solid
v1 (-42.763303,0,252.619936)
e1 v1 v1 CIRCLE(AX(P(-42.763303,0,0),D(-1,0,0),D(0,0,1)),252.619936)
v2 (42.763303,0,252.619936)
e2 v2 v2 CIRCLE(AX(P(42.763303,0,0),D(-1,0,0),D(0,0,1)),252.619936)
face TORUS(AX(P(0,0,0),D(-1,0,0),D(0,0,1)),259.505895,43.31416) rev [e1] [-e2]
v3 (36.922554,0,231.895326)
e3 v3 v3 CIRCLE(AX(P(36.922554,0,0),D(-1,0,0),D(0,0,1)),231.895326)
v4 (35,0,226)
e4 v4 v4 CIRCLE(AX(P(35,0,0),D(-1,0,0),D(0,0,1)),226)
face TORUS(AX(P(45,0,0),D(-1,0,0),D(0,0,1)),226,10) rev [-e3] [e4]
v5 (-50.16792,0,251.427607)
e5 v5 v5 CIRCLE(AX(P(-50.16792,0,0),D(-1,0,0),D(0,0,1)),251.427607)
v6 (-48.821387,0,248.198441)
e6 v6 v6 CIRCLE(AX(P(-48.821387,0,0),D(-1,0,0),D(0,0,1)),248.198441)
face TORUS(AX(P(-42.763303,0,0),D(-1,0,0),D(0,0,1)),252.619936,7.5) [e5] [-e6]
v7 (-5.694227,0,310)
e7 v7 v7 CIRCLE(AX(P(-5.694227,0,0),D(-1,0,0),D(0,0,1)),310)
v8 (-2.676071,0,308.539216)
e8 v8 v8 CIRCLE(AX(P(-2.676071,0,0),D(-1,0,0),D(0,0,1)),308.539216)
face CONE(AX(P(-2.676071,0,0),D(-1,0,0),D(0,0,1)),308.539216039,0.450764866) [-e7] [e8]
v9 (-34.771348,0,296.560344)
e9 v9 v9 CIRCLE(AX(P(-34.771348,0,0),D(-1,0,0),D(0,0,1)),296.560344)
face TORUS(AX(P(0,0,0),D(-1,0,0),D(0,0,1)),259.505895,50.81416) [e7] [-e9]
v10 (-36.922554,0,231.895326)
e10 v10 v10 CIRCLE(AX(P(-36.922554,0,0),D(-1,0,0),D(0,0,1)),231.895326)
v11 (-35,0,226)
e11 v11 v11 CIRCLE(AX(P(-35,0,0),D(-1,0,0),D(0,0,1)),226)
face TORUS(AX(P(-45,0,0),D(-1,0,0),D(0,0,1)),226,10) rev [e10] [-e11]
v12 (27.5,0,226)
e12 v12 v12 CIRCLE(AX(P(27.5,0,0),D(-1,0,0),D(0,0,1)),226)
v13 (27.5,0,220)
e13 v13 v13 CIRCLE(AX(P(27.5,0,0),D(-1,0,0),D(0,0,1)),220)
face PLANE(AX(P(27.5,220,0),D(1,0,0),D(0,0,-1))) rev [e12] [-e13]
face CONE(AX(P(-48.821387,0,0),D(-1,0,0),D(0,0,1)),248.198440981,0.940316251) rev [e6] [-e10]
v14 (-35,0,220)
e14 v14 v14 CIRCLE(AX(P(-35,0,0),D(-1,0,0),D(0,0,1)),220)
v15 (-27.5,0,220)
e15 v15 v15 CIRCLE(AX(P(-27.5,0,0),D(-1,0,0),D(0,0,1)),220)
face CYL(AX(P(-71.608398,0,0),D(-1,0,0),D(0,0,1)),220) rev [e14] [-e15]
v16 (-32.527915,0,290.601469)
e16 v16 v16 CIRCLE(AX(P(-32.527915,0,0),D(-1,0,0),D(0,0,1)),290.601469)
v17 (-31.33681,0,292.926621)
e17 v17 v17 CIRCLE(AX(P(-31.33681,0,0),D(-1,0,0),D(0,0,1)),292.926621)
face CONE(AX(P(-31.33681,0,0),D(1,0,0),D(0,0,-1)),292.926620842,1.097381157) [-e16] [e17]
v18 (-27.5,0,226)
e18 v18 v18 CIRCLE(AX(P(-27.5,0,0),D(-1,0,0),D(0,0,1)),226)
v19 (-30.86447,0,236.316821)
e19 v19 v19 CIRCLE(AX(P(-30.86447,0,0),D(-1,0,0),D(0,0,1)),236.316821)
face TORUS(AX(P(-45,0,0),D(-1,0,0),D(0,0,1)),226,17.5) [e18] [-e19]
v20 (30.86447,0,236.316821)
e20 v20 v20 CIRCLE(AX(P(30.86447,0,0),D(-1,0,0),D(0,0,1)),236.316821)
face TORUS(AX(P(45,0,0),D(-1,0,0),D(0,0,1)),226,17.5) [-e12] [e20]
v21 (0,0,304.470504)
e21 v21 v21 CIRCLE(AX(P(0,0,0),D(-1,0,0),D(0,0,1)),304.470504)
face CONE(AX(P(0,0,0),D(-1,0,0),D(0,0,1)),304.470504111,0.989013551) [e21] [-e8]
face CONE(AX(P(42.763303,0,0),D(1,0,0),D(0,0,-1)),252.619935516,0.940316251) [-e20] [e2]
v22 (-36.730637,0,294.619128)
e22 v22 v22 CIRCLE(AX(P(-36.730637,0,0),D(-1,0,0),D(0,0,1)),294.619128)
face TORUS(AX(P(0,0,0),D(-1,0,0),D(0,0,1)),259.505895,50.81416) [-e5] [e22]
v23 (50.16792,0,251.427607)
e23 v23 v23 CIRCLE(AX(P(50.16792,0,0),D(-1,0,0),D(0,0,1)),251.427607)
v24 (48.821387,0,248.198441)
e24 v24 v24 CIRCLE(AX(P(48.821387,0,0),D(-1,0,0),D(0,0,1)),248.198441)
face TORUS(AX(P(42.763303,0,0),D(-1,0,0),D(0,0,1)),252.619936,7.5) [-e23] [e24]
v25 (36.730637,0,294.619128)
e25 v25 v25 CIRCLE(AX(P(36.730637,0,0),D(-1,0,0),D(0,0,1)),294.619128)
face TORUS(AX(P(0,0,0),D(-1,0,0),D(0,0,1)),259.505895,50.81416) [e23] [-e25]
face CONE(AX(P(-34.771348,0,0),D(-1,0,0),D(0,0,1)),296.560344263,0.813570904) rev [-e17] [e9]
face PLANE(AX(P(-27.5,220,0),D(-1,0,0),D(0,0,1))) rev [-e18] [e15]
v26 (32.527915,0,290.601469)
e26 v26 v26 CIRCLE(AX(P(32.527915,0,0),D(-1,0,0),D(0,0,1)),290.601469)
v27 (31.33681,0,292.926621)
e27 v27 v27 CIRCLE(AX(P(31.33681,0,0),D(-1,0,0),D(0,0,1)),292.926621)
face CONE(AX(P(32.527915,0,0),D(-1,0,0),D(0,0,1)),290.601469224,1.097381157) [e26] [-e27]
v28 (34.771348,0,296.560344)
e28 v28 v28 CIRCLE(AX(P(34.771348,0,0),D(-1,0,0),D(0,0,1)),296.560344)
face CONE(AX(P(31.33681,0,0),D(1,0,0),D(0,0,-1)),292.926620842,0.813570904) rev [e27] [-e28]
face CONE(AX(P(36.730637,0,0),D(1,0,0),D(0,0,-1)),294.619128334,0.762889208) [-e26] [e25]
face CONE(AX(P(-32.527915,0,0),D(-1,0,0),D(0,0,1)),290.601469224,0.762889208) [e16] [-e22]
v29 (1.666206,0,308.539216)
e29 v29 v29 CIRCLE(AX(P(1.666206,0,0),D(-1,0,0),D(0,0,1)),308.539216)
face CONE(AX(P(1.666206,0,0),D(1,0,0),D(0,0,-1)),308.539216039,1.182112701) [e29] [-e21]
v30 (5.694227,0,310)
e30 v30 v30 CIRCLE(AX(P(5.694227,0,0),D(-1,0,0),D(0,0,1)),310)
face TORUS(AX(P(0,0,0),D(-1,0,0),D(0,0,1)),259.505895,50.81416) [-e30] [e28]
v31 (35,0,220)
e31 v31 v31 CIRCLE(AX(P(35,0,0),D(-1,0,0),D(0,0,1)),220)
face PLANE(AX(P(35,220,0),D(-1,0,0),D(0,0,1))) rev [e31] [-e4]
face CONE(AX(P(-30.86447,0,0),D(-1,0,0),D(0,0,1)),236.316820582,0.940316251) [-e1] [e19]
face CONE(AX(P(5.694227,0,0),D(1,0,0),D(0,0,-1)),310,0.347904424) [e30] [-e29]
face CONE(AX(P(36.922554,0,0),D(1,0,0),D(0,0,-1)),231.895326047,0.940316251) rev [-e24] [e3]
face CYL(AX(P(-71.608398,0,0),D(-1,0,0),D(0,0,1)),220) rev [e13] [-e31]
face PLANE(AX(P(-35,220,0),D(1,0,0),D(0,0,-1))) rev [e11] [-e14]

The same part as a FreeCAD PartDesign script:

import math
import FreeCAD as App
import Part
import Sketcher

V = App.Vector
Q = App.Units.Quantity

doc = App.newDocument("Part")
body = doc.addObject("PartDesign::Body", "Body")

sketch1 = body.newObject("Sketcher::SketchObject", "Sketch")
sketch1.AttachmentSupport = (doc.getObject("XY_Plane"), [""])
sketch1.MapMode = "FlatFace"
sketch1.addGeometry([
    Part.LineSegment(V(-35, 226, 0), V(-35, 220, 0)),
    Part.LineSegment(V(-35, 220, 0), V(-27.5, 220, 0)),
    Part.LineSegment(V(-27.5, 220, 0), V(-27.5, 226, 0)),
    Part.ArcOfCircle(Part.Circle(V(-45, 226, 0), V(0, 0, 1), 17.5), math.radians(0), math.radians(36.123847)),
    Part.LineSegment(V(-30.86447, 236.316821, 0), V(-42.763303, 252.619936, 0)),
    Part.ArcOfCircle(Part.Circle(V(0, 259.505895, 0), V(0, 0, 1), 43.31416), math.radians(-9.147528), math.radians(189.147528)),
    Part.LineSegment(V(42.763303, 252.619936, 0), V(30.86447, 236.316821, 0)),
    Part.ArcOfCircle(Part.Circle(V(45, 226, 0), V(0, 0, 1), 17.5), math.radians(143.876153), math.radians(180)),
    Part.LineSegment(V(27.5, 226, 0), V(27.5, 220, 0)),
    Part.LineSegment(V(27.5, 220, 0), V(35, 220, 0)),
    Part.LineSegment(V(35, 220, 0), V(35, 226, 0)),
    Part.ArcOfCircle(Part.Circle(V(45, 226, 0), V(0, 0, 1), 10), math.radians(143.876153), math.radians(180)),
    Part.LineSegment(V(36.922554, 231.895326, 0), V(48.821387, 248.198441, 0)),
    Part.ArcOfCircle(Part.Circle(V(42.763303, 252.619936, 0), V(0, 0, 1), 7.5), math.radians(-36.123847), math.radians(-9.147528)),
    Part.ArcOfCircle(Part.Circle(V(0, 259.505895, 0), V(0, 0, 1), 50.81416), math.radians(-9.147528), math.radians(43.710332)),
    Part.LineSegment(V(36.730637, 294.619128, 0), V(32.527915, 290.601469, 0)),
    Part.LineSegment(V(32.527915, 290.601469, 0), V(31.33681, 292.926621, 0)),
    Part.LineSegment(V(31.33681, 292.926621, 0), V(34.771348, 296.560344, 0)),
    Part.ArcOfCircle(Part.Circle(V(0, 259.505895, 0), V(0, 0, 1), 50.81416), math.radians(46.820628), math.radians(83.565929)),
    Part.LineSegment(V(5.694227, 310, 0), V(1.666206, 308.539216, 0)),
    Part.LineSegment(V(1.666206, 308.539216, 0), V(0, 304.470504, 0)),
    Part.LineSegment(V(0, 304.470504, 0), V(-2.676071, 308.539216, 0)),
    Part.LineSegment(V(-2.676071, 308.539216, 0), V(-5.694227, 310, 0)),
    Part.ArcOfCircle(Part.Circle(V(0, 259.505895, 0), V(0, 0, 1), 50.81416), math.radians(96.434071), math.radians(133.179372)),
    Part.LineSegment(V(-34.771348, 296.560344, 0), V(-31.33681, 292.926621, 0)),
    Part.LineSegment(V(-31.33681, 292.926621, 0), V(-32.527915, 290.601469, 0)),
    Part.LineSegment(V(-32.527915, 290.601469, 0), V(-36.730637, 294.619128, 0)),
    Part.ArcOfCircle(Part.Circle(V(0, 259.505895, 0), V(0, 0, 1), 50.81416), math.radians(136.289668), math.radians(189.147528)),
    Part.ArcOfCircle(Part.Circle(V(-42.763303, 252.619936, 0), V(0, 0, 1), 7.5), math.radians(-170.852472), math.radians(-143.876153)),
    Part.LineSegment(V(-48.821387, 248.198441, 0), V(-36.922554, 231.895326, 0)),
    Part.ArcOfCircle(Part.Circle(V(-45, 226, 0), V(0, 0, 1), 10), math.radians(0), math.radians(36.123847)),
], False)
sketch1.addConstraint([
    Sketcher.Constraint("Coincident", 0, 2, 1, 1),
    Sketcher.Constraint("Coincident", 1, 2, 2, 1),
    Sketcher.Constraint("Coincident", 2, 2, 3, 1),
    Sketcher.Constraint("Coincident", 3, 2, 4, 1),
    Sketcher.Constraint("Coincident", 4, 2, 5, 2),
    Sketcher.Constraint("Coincident", 5, 1, 6, 1),
    Sketcher.Constraint("Coincident", 6, 2, 7, 1),
    Sketcher.Constraint("Coincident", 7, 2, 8, 1),
    Sketcher.Constraint("Coincident", 8, 2, 9, 1),
    Sketcher.Constraint("Coincident", 9, 2, 10, 1),
    Sketcher.Constraint("Coincident", 10, 2, 11, 2),
    Sketcher.Constraint("Coincident", 11, 1, 12, 1),
    Sketcher.Constraint("Coincident", 12, 2, 13, 1),
    Sketcher.Constraint("Coincident", 13, 2, 14, 1),
    Sketcher.Constraint("Coincident", 14, 2, 15, 1),
    Sketcher.Constraint("Coincident", 15, 2, 16, 1),
    Sketcher.Constraint("Coincident", 16, 2, 17, 1),
    Sketcher.Constraint("Coincident", 17, 2, 18, 1),
    Sketcher.Constraint("Coincident", 18, 2, 19, 1),
    Sketcher.Constraint("Coincident", 19, 2, 20, 1),
    Sketcher.Constraint("Coincident", 20, 2, 21, 1),
    Sketcher.Constraint("Coincident", 21, 2, 22, 1),
    Sketcher.Constraint("Coincident", 22, 2, 23, 1),
    Sketcher.Constraint("Coincident", 23, 2, 24, 1),
    Sketcher.Constraint("Coincident", 24, 2, 25, 1),
    Sketcher.Constraint("Coincident", 25, 2, 26, 1),
    Sketcher.Constraint("Coincident", 26, 2, 27, 1),
    Sketcher.Constraint("Coincident", 27, 2, 28, 1),
    Sketcher.Constraint("Coincident", 28, 2, 29, 1),
    Sketcher.Constraint("Coincident", 29, 2, 30, 2),
    Sketcher.Constraint("Coincident", 30, 1, 0, 1),
    Sketcher.Constraint("Vertical", 0),
    Sketcher.Constraint("Horizontal", 1),
    Sketcher.Constraint("Vertical", 2),
    Sketcher.Constraint("Vertical", 8),
    Sketcher.Constraint("Horizontal", 9),
    Sketcher.Constraint("Vertical", 10),
    Sketcher.Constraint("Coincident", 11, 3, 7, 3),
    Sketcher.Constraint("Coincident", 14, 3, 5, 3),
    Sketcher.Constraint("Coincident", 18, 3, 5, 3),
    Sketcher.Constraint("Coincident", 23, 3, 5, 3),
    Sketcher.Constraint("Coincident", 27, 3, 5, 3),
    Sketcher.Constraint("Coincident", 30, 3, 3, 3),
    Sketcher.Constraint("Coincident", 4, 2, 28, 3),
    Sketcher.Constraint("Coincident", 5, 1, 13, 3),
    Sketcher.Constraint("PointOnObject", 5, 3, -2),
    Sketcher.Constraint("PointOnObject", 20, 2, -2),
    Sketcher.Constraint("Radius", 11, Q("10 mm")),
    Sketcher.Constraint("Radius", 30, Q("10 mm")),
    Sketcher.Constraint("Radius", 3, Q("17.5 mm")),
    Sketcher.Constraint("Radius", 7, Q("17.5 mm")),
    Sketcher.Constraint("Radius", 13, Q("7.5 mm")),
    Sketcher.Constraint("Radius", 28, Q("7.5 mm")),
    Sketcher.Constraint("DistanceY", 0, 2, 0, 1, Q("6 mm")),
    Sketcher.Constraint("DistanceY", 2, 1, 2, 2, Q("6 mm")),
    Sketcher.Constraint("DistanceY", 8, 2, 8, 1, Q("6 mm")),
    Sketcher.Constraint("DistanceY", 10, 1, 10, 2, Q("6 mm")),
    Sketcher.Constraint("Distance", 17, Q("5 mm")),
    Sketcher.Constraint("Distance", 24, Q("5 mm")),
    Sketcher.Constraint("DistanceX", 3, 3, -1, 1, Q("45 mm")),
    Sketcher.Constraint("DistanceY", -1, 1, 3, 3, Q("226 mm")),
    Sketcher.Constraint("DistanceX", -1, 1, 7, 3, Q("45 mm")),
    Sketcher.Constraint("DistanceY", -1, 1, 7, 3, Q("226 mm")),
    Sketcher.Constraint("DistanceY", -1, 1, 0, 2, Q("220 mm")),
    Sketcher.Constraint("DistanceY", -1, 1, 7, 2, Q("226 mm")),
    Sketcher.Constraint("DistanceY", -1, 1, 18, 2, Q("310 mm")),
    Sketcher.Constraint("DistanceY", -1, 1, 22, 2, Q("310 mm")),
    Sketcher.Constraint("Radius", 5, Q("43.31416 mm")),
    Sketcher.Constraint("Radius", 18, Q("50.81416 mm")),
    Sketcher.Constraint("Radius", 23, Q("50.81416 mm")),
    Sketcher.Constraint("DistanceX", 21, 2, 18, 2, Q("8.370298 mm")),
    Sketcher.Constraint("Distance", 15, Q("5.81416 mm")),
    Sketcher.Constraint("Distance", 16, Q("2.612482 mm")),
    Sketcher.Constraint("Distance", 19, Q("4.284722 mm")),
    Sketcher.Constraint("Distance", 22, Q("3.353082 mm")),
    Sketcher.Constraint("Distance", 25, Q("2.612482 mm")),
    Sketcher.Constraint("Distance", 26, Q("5.81416 mm")),
    Sketcher.Constraint("DistanceX", 3, 2, -1, 1, Q("30.86447 mm")),
    Sketcher.Constraint("DistanceX", -1, 1, 6, 2, Q("30.86447 mm")),
    Sketcher.Constraint("DistanceY", -1, 1, 12, 2, Q("248.198441 mm")),
    Sketcher.Constraint("DistanceX", -1, 1, 13, 2, Q("50.16792 mm")),
    Sketcher.Constraint("DistanceY", -1, 1, 14, 2, Q("294.619128 mm")),
    Sketcher.Constraint("DistanceY", -1, 1, 15, 2, Q("290.601469 mm")),
    Sketcher.Constraint("DistanceX", -1, 1, 16, 2, Q("31.33681 mm")),
    Sketcher.Constraint("DistanceX", -1, 1, 17, 2, Q("34.771348 mm")),
    Sketcher.Constraint("DistanceX", 23, 2, -1, 1, Q("34.771348 mm")),
    Sketcher.Constraint("DistanceX", 24, 2, -1, 1, Q("31.33681 mm")),
    Sketcher.Constraint("DistanceY", -1, 1, 26, 2, Q("294.619128 mm")),
    Sketcher.Constraint("DistanceX", 27, 2, -1, 1, Q("50.16792 mm")),
    Sketcher.Constraint("DistanceY", -1, 1, 28, 2, Q("248.198441 mm")),
    Sketcher.Constraint("DistanceY", 13, 3, 5, 3, Q("6.885959 mm")),
    Sketcher.Constraint("DistanceY", 28, 3, 18, 3, Q("6.885959 mm")),
    Sketcher.Constraint("DistanceY", 11, 1, 13, 2, Q("19.532281 mm")),
    Sketcher.Constraint("DistanceX", 19, 2, 18, 2, Q("4.028021 mm")),
    Sketcher.Constraint("DistanceY", 20, 2, 19, 2, Q("4.068712 mm")),
    Sketcher.Constraint("Distance", 29, Q("20.183503 mm")),
])
revolution = body.newObject("PartDesign::Revolution", "Revolution")
revolution.Profile = sketch1
revolution.ReferenceAxis = (sketch1, ["H_Axis"])
revolution.Angle = 360

doc.recompute()
